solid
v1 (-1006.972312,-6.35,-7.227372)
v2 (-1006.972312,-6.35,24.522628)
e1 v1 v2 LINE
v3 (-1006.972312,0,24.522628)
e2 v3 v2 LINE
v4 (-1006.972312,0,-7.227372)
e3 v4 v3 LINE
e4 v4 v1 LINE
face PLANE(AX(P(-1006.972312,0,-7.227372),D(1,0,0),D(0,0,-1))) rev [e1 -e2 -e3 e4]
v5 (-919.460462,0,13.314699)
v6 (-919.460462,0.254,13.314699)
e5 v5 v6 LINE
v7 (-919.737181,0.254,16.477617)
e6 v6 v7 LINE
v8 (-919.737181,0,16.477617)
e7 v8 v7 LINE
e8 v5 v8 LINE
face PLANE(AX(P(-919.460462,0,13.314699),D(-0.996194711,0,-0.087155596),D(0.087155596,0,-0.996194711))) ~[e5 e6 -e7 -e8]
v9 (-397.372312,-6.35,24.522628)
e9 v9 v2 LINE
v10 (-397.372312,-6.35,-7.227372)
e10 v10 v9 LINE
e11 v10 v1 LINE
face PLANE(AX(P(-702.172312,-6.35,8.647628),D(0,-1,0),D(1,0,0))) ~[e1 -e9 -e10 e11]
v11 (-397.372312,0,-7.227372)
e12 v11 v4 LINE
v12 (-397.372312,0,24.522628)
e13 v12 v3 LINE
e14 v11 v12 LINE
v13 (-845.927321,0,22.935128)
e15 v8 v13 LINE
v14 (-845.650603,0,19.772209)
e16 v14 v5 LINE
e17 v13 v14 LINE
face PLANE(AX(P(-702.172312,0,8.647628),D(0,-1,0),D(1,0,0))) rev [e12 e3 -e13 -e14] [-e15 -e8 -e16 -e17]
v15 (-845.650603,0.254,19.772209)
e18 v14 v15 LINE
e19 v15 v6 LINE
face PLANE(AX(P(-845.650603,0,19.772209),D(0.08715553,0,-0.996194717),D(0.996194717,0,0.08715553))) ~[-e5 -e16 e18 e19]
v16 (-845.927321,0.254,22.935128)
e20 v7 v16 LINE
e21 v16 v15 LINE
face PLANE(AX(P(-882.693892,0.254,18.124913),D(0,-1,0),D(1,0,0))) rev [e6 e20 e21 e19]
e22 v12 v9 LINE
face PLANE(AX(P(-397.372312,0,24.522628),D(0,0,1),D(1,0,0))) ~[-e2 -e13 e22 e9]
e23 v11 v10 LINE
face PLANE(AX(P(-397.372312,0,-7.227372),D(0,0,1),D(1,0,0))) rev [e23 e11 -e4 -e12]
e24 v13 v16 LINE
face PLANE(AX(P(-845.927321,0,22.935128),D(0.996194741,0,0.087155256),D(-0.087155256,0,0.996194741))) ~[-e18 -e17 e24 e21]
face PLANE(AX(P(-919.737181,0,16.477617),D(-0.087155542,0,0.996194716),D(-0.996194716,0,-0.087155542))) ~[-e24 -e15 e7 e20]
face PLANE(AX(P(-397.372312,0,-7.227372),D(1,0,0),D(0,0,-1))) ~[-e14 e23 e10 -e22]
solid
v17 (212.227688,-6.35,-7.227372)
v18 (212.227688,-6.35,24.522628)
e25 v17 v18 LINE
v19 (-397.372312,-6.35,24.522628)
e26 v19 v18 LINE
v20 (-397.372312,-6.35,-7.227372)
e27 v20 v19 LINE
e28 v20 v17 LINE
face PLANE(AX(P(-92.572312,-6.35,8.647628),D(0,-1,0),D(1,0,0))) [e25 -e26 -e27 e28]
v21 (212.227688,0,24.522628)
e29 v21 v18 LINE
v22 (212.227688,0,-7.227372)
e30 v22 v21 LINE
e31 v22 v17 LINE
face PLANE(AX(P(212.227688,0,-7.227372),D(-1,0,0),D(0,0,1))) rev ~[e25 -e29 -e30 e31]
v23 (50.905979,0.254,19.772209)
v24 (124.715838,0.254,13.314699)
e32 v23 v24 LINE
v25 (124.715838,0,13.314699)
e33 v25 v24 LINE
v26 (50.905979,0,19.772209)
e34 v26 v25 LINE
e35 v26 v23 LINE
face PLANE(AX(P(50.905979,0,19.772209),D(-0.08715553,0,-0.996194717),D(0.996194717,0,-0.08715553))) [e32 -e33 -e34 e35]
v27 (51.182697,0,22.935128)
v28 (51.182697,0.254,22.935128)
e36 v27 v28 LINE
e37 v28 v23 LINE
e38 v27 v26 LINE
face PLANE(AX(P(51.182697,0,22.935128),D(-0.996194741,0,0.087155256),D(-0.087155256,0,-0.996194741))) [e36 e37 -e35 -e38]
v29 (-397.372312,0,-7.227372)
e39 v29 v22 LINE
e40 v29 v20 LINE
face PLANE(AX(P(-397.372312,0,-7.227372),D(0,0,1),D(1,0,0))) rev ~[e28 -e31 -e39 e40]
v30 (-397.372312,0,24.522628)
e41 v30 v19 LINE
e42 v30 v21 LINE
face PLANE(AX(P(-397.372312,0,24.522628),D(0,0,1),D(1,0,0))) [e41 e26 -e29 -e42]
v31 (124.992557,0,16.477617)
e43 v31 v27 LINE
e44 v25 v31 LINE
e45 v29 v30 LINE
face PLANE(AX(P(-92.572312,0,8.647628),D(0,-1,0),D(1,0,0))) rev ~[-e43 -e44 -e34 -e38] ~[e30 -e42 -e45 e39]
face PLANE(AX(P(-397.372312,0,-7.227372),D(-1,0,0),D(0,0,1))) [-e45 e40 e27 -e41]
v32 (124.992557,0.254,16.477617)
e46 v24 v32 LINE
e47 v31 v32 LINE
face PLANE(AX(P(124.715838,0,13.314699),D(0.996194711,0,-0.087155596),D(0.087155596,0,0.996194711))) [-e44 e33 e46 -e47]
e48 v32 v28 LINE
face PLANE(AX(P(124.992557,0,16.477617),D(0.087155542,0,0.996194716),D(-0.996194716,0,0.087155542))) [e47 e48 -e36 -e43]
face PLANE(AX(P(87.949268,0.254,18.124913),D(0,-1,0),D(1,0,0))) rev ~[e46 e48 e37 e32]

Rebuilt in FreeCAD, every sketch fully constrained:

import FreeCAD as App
import Part
import Sketcher

V = App.Vector
Q = App.Units.Quantity

doc = App.newDocument("Part")
body = doc.addObject("PartDesign::Body", "Body")

# Sketch on XZ plane
sketch1 = doc.addObject("Sketcher::SketchObject", "Sketch")
body.addObject(sketch1)
sketch1.AttachmentSupport = (doc.XZ_Plane, [""])
sketch1.MapMode = "FlatFace"
sketch1.addGeometry([
    Part.LineSegment(V(-397.372312, 24.522628, 0), V(-397.372312, -7.227372, 0)),
    Part.LineSegment(V(-397.372312, -7.227372, 0), V(212.227688, -7.227372, 0)),
    Part.LineSegment(V(212.227688, -7.227372, 0), V(212.227688, 24.522628, 0)),
    Part.LineSegment(V(212.227688, 24.522628, 0), V(-397.372312, 24.522628, 0)),
], False)
sketch1.addConstraint([
    Sketcher.Constraint("Coincident", 0, 2, 1, 1),
    Sketcher.Constraint("Coincident", 1, 2, 2, 1),
    Sketcher.Constraint("Coincident", 2, 2, 3, 1),
    Sketcher.Constraint("Coincident", 3, 2, 0, 1),
    Sketcher.Constraint("Vertical", 0),
    Sketcher.Constraint("Horizontal", 1),
    Sketcher.Constraint("Vertical", 2),
    Sketcher.Constraint("Horizontal", 3),
    Sketcher.Constraint("DistanceX", 1, 1, 1, 2, Q("24 in")),
    Sketcher.Constraint("DistanceY", 0, 2, 0, 1, Q("1.25 in")),
    Sketcher.Constraint("DistanceX", 0, 2, -1, 1, 397.372312),
    Sketcher.Constraint("DistanceY", -1, 1, 2, 2, 24.522628),
])
pad1 = doc.addObject("PartDesign::Pad", "Pad")
body.addObject(pad1)
pad1.Profile = sketch1
pad1.Length = Q("0.25 in")

# Sketch on XZ plane
sketch2 = doc.addObject("Sketcher::SketchObject", "Sketch001")
body.addObject(sketch2)
sketch2.AttachmentSupport = (doc.XZ_Plane, [""])
sketch2.MapMode = "FlatFace"
sketch2.addGeometry([
    Part.LineSegment(V(124.992557, 16.477617, 0), V(51.182697, 22.935128, 0)),
    Part.LineSegment(V(51.182697, 22.935128, 0), V(50.905979, 19.772209, 0)),
    Part.LineSegment(V(50.905979, 19.772209, 0), V(124.715838, 13.314699, 0)),
    Part.LineSegment(V(124.715838, 13.314699, 0), V(124.992557, 16.477617, 0)),
], False)
sketch2.addConstraint([
    Sketcher.Constraint("Coincident", 0, 2, 1, 1),
    Sketcher.Constraint("Coincident", 1, 2, 2, 1),
    Sketcher.Constraint("Coincident", 2, 2, 3, 1),
    Sketcher.Constraint("Coincident", 3, 2, 0, 1),
    Sketcher.Constraint("Perpendicular", 0, 1),
    Sketcher.Constraint("Perpendicular", 1, 2),
    Sketcher.Constraint("Perpendicular", 2, 3),
    Sketcher.Constraint("Angle", 0, Q("175.000012 deg")),
    Sketcher.Constraint("Distance", 0, Q("2.917 in")),
    Sketcher.Constraint("Distance", 1, Q("0.125 in")),
    Sketcher.Constraint("DistanceY", -1, 1, 2, 2, 13.314699),
    Sketcher.Constraint("DistanceX", -1, 1, 1, 2, 50.905979),
])
pad2 = doc.addObject("PartDesign::Pad", "Pad001")
body.addObject(pad2)
pad2.Profile = sketch2
pad2.Length = Q("0.01 in")
pad2.Reversed = True
body2 = doc.addObject("PartDesign::Body", "Body001")
doc.recompute()

mirroring = doc.addObject("Part::Mirroring", "Mirroring")
mirroring.Source = body
mirroring.Base = V(-397.372312, -3.175, 8.647628)
mirroring.Normal = V(-1, 0, 0)
body2.BaseFeature = mirroring
doc.recompute()
body3 = doc.addObject("PartDesign::Body", "Body002")
doc.recompute()

mirroring2 = doc.addObject("Part::Mirroring", "Mirroring001")
mirroring2.Source = body
mirroring2.Base = V(-397.372312, -3.175, 8.647628)
mirroring2.Normal = V(-1, 0, 0)
body3.BaseFeature = mirroring2
doc.recompute()
body2.Visibility = False
mirroring.Visibility = False
mirroring2.Visibility = False

doc.recompute()
